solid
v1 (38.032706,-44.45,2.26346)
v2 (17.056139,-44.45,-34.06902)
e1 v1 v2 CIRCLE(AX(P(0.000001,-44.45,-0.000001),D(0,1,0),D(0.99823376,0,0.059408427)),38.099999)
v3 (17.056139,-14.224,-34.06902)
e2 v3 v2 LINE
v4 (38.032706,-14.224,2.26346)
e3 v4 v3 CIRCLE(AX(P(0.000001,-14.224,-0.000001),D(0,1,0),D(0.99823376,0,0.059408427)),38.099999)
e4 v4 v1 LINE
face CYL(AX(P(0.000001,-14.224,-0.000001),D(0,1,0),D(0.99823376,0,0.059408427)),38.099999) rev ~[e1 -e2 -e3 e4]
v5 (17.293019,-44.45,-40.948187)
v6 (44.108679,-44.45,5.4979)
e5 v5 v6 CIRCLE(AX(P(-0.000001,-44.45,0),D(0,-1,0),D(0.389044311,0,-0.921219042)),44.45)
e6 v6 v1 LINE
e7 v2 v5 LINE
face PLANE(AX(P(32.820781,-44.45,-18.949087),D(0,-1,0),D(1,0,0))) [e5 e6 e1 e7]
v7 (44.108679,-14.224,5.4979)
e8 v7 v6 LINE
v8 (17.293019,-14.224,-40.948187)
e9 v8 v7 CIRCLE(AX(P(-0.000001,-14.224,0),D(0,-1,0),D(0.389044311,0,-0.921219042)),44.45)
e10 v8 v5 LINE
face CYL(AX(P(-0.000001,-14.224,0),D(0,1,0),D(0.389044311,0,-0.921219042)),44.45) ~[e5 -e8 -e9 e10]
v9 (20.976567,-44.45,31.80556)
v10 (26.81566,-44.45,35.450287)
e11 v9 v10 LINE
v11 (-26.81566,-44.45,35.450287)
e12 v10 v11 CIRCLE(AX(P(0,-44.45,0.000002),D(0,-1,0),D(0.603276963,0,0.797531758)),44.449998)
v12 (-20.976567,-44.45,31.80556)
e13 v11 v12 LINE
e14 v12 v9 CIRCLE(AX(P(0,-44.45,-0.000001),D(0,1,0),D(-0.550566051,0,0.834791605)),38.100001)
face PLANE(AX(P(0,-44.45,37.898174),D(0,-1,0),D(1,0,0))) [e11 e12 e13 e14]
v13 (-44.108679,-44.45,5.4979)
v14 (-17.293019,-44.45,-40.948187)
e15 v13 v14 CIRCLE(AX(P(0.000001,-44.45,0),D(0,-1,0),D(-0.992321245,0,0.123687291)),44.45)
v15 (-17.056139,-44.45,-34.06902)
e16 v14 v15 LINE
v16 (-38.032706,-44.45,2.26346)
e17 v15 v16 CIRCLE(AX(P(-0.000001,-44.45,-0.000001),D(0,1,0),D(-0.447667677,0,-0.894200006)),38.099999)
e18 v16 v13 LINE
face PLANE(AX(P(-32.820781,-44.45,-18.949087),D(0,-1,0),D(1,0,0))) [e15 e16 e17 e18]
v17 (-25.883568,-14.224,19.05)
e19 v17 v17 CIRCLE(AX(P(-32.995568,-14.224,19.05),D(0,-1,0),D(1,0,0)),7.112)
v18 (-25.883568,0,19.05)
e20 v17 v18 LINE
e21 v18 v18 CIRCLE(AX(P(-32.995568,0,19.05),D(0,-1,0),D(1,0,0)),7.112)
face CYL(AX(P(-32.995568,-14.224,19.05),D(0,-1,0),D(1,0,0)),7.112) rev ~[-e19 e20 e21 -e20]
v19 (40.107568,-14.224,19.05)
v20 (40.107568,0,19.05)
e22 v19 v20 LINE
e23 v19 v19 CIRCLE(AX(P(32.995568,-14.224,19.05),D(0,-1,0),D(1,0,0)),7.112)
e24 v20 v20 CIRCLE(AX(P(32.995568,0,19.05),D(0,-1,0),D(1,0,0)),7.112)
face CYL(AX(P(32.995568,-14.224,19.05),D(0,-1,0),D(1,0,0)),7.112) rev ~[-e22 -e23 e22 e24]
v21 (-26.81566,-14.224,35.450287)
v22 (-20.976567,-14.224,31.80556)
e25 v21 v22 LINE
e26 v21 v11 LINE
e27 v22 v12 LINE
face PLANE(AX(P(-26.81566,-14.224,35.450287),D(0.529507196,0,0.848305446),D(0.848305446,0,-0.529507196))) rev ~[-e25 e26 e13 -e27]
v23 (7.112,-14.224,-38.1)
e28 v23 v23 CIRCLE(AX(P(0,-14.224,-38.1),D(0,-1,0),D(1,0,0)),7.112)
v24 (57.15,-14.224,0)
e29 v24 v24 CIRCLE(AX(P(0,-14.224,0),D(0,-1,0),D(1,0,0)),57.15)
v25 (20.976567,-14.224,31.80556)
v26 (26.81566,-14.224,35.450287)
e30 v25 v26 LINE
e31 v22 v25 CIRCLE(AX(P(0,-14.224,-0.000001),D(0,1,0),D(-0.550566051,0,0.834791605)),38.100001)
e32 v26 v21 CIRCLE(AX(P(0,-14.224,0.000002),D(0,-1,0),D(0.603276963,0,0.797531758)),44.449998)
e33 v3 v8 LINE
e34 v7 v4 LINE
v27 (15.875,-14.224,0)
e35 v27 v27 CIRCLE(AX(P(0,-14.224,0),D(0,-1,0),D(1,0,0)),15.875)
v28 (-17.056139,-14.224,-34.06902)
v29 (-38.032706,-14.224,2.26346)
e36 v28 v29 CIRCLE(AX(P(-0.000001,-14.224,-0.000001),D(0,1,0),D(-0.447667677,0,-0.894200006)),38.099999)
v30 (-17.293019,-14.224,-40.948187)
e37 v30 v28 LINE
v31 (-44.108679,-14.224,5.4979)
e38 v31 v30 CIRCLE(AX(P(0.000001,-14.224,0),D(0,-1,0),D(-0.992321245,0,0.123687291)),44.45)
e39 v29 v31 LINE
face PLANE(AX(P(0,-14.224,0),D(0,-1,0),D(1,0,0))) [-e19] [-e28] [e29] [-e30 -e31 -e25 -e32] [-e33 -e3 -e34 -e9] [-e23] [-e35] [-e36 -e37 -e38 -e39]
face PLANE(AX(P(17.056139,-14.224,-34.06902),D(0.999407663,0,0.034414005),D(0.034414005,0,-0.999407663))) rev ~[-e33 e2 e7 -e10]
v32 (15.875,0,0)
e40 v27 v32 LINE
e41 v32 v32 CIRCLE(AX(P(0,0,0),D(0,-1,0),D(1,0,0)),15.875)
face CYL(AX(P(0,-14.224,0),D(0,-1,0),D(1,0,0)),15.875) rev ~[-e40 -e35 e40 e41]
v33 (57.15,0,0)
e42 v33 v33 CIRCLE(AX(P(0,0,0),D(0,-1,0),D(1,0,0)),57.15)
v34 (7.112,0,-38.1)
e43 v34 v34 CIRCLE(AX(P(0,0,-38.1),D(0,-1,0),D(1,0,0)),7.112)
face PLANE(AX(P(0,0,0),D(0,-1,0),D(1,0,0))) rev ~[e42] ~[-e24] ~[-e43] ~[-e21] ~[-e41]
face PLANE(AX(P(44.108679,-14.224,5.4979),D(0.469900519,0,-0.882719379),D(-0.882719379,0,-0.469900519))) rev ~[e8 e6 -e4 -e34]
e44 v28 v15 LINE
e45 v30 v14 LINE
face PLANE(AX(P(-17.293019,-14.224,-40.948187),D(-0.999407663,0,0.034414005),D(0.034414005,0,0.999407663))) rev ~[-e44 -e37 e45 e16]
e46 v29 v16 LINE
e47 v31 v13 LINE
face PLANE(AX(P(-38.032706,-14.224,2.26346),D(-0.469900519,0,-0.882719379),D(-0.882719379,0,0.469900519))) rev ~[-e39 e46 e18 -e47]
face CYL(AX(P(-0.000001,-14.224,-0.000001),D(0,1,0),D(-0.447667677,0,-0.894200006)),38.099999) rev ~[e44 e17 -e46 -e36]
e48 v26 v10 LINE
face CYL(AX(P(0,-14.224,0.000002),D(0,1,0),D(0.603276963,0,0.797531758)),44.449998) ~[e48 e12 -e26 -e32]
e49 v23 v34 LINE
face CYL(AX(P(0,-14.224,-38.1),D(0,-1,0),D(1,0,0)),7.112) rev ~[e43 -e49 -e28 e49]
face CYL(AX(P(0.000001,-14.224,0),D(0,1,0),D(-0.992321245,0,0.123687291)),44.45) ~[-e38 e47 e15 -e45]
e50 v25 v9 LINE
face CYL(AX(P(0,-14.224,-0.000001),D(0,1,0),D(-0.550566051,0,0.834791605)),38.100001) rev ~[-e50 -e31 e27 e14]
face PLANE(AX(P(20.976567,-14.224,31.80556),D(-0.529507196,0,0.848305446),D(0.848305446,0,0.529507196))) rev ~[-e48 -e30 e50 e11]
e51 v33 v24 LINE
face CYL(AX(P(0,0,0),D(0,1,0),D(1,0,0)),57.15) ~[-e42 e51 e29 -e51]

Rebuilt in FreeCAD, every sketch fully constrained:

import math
import FreeCAD as App
import Part
import Sketcher
from FreeCAD import Vector
Q = App.Units.Quantity

doc = App.newDocument("Part")
body = doc.addObject("PartDesign::Body", "Body")

# Sketch on XZ plane
sketch1 = body.newObject("Sketcher::SketchObject", "Sketch")
sketch1.AttachmentSupport = (doc.getObject("XZ_Plane"), [""])
sketch1.MapMode = "FlatFace"
sketch1.addGeometry(Part.Circle(Vector(0, 0, 0), Vector(0, 0, 1), 57), False)
sketch1.addConstraint([
    Sketcher.Constraint("Coincident", 0, 3, -1, 1),
    Sketcher.Constraint("Diameter", 0, Q("4.5 in")),
])
pad1 = body.newObject("PartDesign::Pad", "Pad")
pad1.Profile = sketch1
pad1.Length = Q("0.56 in")

# Sketch on XZ plane
sketch2 = body.newObject("Sketcher::SketchObject", "Sketch001")
sketch2.AttachmentSupport = (doc.getObject("XZ_Plane"), [""])
sketch2.MapMode = "FlatFace"
sketch2.AttachmentOffset = App.Placement(Vector(0, 0, 0.56 * 25.4), App.Rotation())
sketch2.addGeometry(Part.Circle(Vector(0, 0, 0), Vector(0, 0, 1), 16), False)
sketch2.addConstraint([
    Sketcher.Constraint("Coincident", 0, 3, -1, 1),
    Sketcher.Constraint("Diameter", 0, Q("1.25 in")),
])
pocket1 = body.newObject("PartDesign::Pocket", "Pocket")
pocket1.Profile = sketch2
pocket1.Length = Q("1 in")

# Sketch on XZ plane
sketch3 = body.newObject("Sketcher::SketchObject", "Sketch002")
sketch3.AttachmentSupport = (doc.getObject("XZ_Plane"), [""])
sketch3.MapMode = "FlatFace"
sketch3.AttachmentOffset = App.Placement(Vector(0, 0, 0.56 * 25.4), App.Rotation())
sketch3.addGeometry([
    Part.Circle(Vector(0, -38, 0), Vector(0, 0, 1), 7),
    Part.Circle(Vector(33, 19, 0), Vector(0, 0, 1), 7),
    Part.Circle(Vector(-33, 19, 0), Vector(0, 0, 1), 7),
], False)
sketch3.addConstraint([
    Sketcher.Constraint("Equal", 0, 1),
    Sketcher.Constraint("Equal", 1, 2),
    Sketcher.Constraint("Symmetric", 1, 3, 2, 3, -2),
    Sketcher.Constraint("PointOnObject", 0, 3, -2),
    Sketcher.Constraint("Diameter", 0, Q("0.56 in")),
    Sketcher.Constraint("DistanceY", 0, 3, -1, 1, Q("1.5 in")),
    Sketcher.Constraint("DistanceY", -1, 1, 1, 3, Q("0.75 in")),
    Sketcher.Constraint("DistanceX", -1, 1, 1, 3, 32.995568),
])
pocket2 = body.newObject("PartDesign::Pocket", "Pocket001")
pocket2.Profile = sketch3
pocket2.Length = Q("1 in")

# Sketch on XZ plane
sketch4 = body.newObject("Sketcher::SketchObject", "Sketch003")
sketch4.AttachmentSupport = (doc.getObject("XZ_Plane"), [""])
sketch4.MapMode = "FlatFace"
sketch4.AttachmentOffset = App.Placement(Vector(0, 0, 0.56 * 25.4), App.Rotation())
sketch4.addGeometry([
    Part.LineSegment(Vector(-38, 2, 0), Vector(-44, 5, 0)),  # 0
    Part.ArcOfCircle(Part.Circle(Vector(0, 0, 0), Vector(0, 0, 1), 44), math.radians(173), math.radians(247)),  # 1
    Part.LineSegment(Vector(-17, -41, 0), Vector(-17, -34, 0)),  # 2
    Part.ArcOfCircle(Part.Circle(Vector(0, 0, 0), Vector(0, 0, 1), 38), math.radians(177), math.radians(243)),  # 3
    Part.ArcOfCircle(Part.Circle(Vector(0, 0, 0), Vector(0, 0, 1), 38), math.radians(57), math.radians(123)),  # 4
    Part.LineSegment(Vector(21, 32, 0), Vector(27, 35, 0)),  # 5
    Part.ArcOfCircle(Part.Circle(Vector(0, 0, 0), Vector(0, 0, 1), 44), math.radians(53), math.radians(127)),  # 6
    Part.LineSegment(Vector(-27, 35, 0), Vector(-21, 32, 0)),  # 7
    Part.LineSegment(Vector(17, -34, 0), Vector(17, -41, 0)),  # 8
    Part.ArcOfCircle(Part.Circle(Vector(0, 0, 0), Vector(0, 0, 1), 44), math.radians(-67), math.radians(7)),  # 9
    Part.LineSegment(Vector(44, 5, 0), Vector(38, 2, 0)),  # 10
    Part.ArcOfCircle(Part.Circle(Vector(0, 0, 0), Vector(0, 0, 1), 38), math.radians(-63), math.radians(3)),  # 11
], False)
sketch4.addConstraint([
    Sketcher.Constraint("Coincident", 0, 2, 1, 1),
    Sketcher.Constraint("Coincident", 1, 2, 2, 1),
    Sketcher.Constraint("Coincident", 2, 2, 3, 2),
    Sketcher.Constraint("Coincident", 3, 1, 0, 1),
    Sketcher.Constraint("Coincident", 4, 1, 5, 1),
    Sketcher.Constraint("Coincident", 5, 2, 6, 1),
    Sketcher.Constraint("Coincident", 6, 2, 7, 1),
    Sketcher.Constraint("Coincident", 7, 2, 4, 2),
    Sketcher.Constraint("Coincident", 8, 2, 9, 1),
    Sketcher.Constraint("Coincident", 9, 2, 10, 1),
    Sketcher.Constraint("Coincident", 10, 2, 11, 2),
    Sketcher.Constraint("Coincident", 11, 1, 8, 1),
    Sketcher.Constraint("Coincident", 1, 3, -1, 1),
    Sketcher.Constraint("Coincident", 3, 3, -1, 1),
    Sketcher.Constraint("Coincident", 4, 3, -1, 1),
    Sketcher.Constraint("Coincident", 6, 3, -1, 1),
    Sketcher.Constraint("Coincident", 9, 3, -1, 1),
    Sketcher.Constraint("Coincident", 11, 3, -1, 1),
    Sketcher.Constraint("Equal", 1, 9),
    Sketcher.Constraint("Equal", 3, 11),
    Sketcher.Constraint("Horizontal", 5, 2, 6, 2),
    Sketcher.Constraint("Horizontal", 4, 1, 7, 2),
    Sketcher.Constraint("Horizontal", 1, 2, 8, 2),
    Sketcher.Constraint("Horizontal", 0, 2, 9, 2),
    Sketcher.Constraint("Horizontal", 3, 1, 10, 2),
    Sketcher.Constraint("Horizontal", 2, 2, 11, 1),
    Sketcher.Constraint("Equal", 0, 2),
    Sketcher.Constraint("Equal", 2, 5),
    Sketcher.Constraint("Radius", 3, Q("1.4999999 in")),
    Sketcher.Constraint("Radius", 4, Q("1.5 in")),
    Sketcher.Constraint("Radius", 1, Q("1.75 in")),
    Sketcher.Constraint("Radius", 6, Q("1.7499999 in")),
    Sketcher.Constraint("DistanceY", 2, 2, -1, 1, Q("1.3413 in")),
    Sketcher.Constraint("DistanceY", -1, 1, 0, 2, 5.4979),
    Sketcher.Constraint("DistanceY", 3, 1, 7, 2, 29.5421),
    Sketcher.Constraint("DistanceX", 1, 2, -1, 1, 17.293019),
])
pad2 = body.newObject("PartDesign::Pad", "Pad001")
pad2.Profile = sketch4
pad2.Length = Q("1.19 in")

doc.recompute()
